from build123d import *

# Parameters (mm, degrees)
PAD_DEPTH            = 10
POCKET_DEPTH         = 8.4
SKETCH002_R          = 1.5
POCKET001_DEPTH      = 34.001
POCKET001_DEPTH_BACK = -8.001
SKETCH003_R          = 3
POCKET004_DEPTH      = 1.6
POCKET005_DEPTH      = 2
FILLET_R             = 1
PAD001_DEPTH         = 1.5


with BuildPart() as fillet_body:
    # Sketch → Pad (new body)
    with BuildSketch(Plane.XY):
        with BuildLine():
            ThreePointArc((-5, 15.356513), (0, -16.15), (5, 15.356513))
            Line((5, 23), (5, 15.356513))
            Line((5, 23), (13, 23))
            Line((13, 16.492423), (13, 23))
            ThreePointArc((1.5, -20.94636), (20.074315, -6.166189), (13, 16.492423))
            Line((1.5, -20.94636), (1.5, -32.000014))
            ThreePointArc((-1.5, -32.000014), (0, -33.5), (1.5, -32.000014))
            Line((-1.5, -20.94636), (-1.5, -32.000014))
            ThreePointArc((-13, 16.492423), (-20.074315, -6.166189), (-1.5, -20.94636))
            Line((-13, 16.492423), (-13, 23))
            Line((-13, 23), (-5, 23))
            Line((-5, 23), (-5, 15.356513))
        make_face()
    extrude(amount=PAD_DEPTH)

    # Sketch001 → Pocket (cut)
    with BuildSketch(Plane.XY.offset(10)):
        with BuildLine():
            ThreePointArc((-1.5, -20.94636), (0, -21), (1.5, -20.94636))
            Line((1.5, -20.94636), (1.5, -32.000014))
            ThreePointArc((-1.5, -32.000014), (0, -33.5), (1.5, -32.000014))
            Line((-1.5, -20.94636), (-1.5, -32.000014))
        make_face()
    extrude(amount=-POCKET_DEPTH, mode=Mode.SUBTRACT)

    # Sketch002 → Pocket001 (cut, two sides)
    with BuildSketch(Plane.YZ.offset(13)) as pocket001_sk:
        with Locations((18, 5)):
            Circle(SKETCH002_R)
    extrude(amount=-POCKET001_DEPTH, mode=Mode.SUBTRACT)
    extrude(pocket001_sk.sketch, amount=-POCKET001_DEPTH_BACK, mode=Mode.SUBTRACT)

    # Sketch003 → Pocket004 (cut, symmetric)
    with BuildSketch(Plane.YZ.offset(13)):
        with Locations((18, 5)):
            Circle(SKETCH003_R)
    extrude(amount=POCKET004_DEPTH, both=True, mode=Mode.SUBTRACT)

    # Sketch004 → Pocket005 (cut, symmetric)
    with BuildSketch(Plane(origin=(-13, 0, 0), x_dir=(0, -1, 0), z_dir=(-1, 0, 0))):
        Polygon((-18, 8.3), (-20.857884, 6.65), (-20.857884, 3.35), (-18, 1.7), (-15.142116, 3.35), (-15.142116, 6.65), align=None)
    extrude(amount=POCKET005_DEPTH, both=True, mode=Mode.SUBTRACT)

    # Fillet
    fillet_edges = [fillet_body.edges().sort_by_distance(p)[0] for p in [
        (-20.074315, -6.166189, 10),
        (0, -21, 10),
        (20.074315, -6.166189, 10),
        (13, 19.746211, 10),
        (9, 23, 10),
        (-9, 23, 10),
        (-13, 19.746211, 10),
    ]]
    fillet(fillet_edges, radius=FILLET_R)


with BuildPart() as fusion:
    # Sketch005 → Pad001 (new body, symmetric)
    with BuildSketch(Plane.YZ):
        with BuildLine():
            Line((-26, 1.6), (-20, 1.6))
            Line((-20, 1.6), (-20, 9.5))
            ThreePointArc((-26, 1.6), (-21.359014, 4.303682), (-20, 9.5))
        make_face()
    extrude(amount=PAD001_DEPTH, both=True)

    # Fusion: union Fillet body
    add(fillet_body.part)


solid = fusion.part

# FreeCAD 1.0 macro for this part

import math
import FreeCAD as App
import Part
import Sketcher
from FreeCAD import Vector
Q = App.Units.Quantity


def edges_at(feature, points):
    """Names of the edges that pass closest to the given points."""
    edges = feature.Shape.Edges
    near = lambda p: min(range(len(edges)), key=lambda i: edges[i].distToShape(Part.Vertex(*p))[0])
    return sorted({f"Edge{near(p) + 1}" for p in points})


def add_polygon(sketch, points):
    """Adds a closed chain of lines whose ends are joined by coincident constraints."""
    first, n = sketch.GeometryCount, len(points)
    for a, b in zip(points, points[1:] + points[:1]):
        sketch.addGeometry(Part.LineSegment(App.Vector(*a, 0), App.Vector(*b, 0)), False)
    for i in range(n):
        sketch.addConstraint(Sketcher.Constraint("Coincident", first + i, 2, first + (i + 1) % n, 1))

doc = App.newDocument("Part")
body = doc.addObject("PartDesign::Body", "Body")

sketch1 = doc.addObject("Sketcher::SketchObject", "Sketch")
body.addObject(sketch1)
sketch1.AttachmentSupport = (doc.XY_Plane, [""])
sketch1.MapMode = "FlatFace"
sketch1.addGeometry(Part.ArcOfCircle(Part.Circle(Vector(0, 0, 0), Vector(0, 0, 1), 16.1), math.radians(108), math.radians(432)), False)
sketch1.addGeometry(Part.LineSegment(Vector(-5, 15.4, 0), Vector(-5, 23, 0)), False)
sketch1.addGeometry(Part.LineSegment(Vector(-5, 23, 0), Vector(-13, 23, 0)), False)
sketch1.addGeometry(Part.LineSegment(Vector(-13, 23, 0), Vector(-13, 16.5, 0)), False)
sketch1.addGeometry(Part.ArcOfCircle(Part.Circle(Vector(0, 0, 0), Vector(0, 0, 1), 21), math.radians(128), math.radians(266)), False)
sketch1.addGeometry(Part.LineSegment(Vector(-1.5, -20.9, 0), Vector(-1.5, -32, 0)), False)
sketch1.addGeometry(Part.ArcOfCircle(Part.Circle(Vector(0, -32, 0), Vector(0, 0, 1), 1.5), math.radians(-180), math.radians(0)), False)
sketch1.addGeometry(Part.LineSegment(Vector(1.5, -32, 0), Vector(1.5, -20.9, 0)), False)
sketch1.addGeometry(Part.ArcOfCircle(Part.Circle(Vector(0, 0, 0), Vector(0, 0, 1), 21), math.radians(-86), math.radians(52)), False)
sketch1.addGeometry(Part.LineSegment(Vector(13, 16.5, 0), Vector(13, 23, 0)), False)
sketch1.addGeometry(Part.LineSegment(Vector(13, 23, 0), Vector(5, 23, 0)), False)
sketch1.addGeometry(Part.LineSegment(Vector(5, 23, 0), Vector(5, 15.4, 0)), False)
sketch1.addConstraint(Sketcher.Constraint("Coincident", 0, 1, 1, 1))
sketch1.addConstraint(Sketcher.Constraint("Coincident", 1, 2, 2, 1))
sketch1.addConstraint(Sketcher.Constraint("Coincident", 2, 2, 3, 1))
sketch1.addConstraint(Sketcher.Constraint("Coincident", 3, 2, 4, 1))
sketch1.addConstraint(Sketcher.Constraint("Coincident", 4, 2, 5, 1))
sketch1.addConstraint(Sketcher.Constraint("Coincident", 5, 2, 6, 1))
sketch1.addConstraint(Sketcher.Constraint("Coincident", 6, 2, 7, 1))
sketch1.addConstraint(Sketcher.Constraint("Coincident", 7, 2, 8, 1))
sketch1.addConstraint(Sketcher.Constraint("Coincident", 8, 2, 9, 1))
sketch1.addConstraint(Sketcher.Constraint("Coincident", 9, 2, 10, 1))
sketch1.addConstraint(Sketcher.Constraint("Coincident", 10, 2, 11, 1))
sketch1.addConstraint(Sketcher.Constraint("Coincident", 11, 2, 0, 2))
sketch1.addConstraint(Sketcher.Constraint("Vertical", 1))
sketch1.addConstraint(Sketcher.Constraint("Horizontal", 2))
sketch1.addConstraint(Sketcher.Constraint("Vertical", 3))
sketch1.addConstraint(Sketcher.Constraint("Vertical", 5))
sketch1.addConstraint(Sketcher.Constraint("Vertical", 7))
sketch1.addConstraint(Sketcher.Constraint("Vertical", 9))
sketch1.addConstraint(Sketcher.Constraint("Horizontal", 10))
sketch1.addConstraint(Sketcher.Constraint("Vertical", 11))
sketch1.addConstraint(Sketcher.Constraint("Coincident", 0, 3, -1, 1))
sketch1.addConstraint(Sketcher.Constraint("Coincident", 4, 3, -1, 1))
sketch1.addConstraint(Sketcher.Constraint("Coincident", 8, 3, -1, 1))
sketch1.addConstraint(Sketcher.Constraint("Equal", 4, 8))
sketch1.addConstraint(Sketcher.Constraint("Symmetric", 5, 2, 6, 2, -2))
sketch1.addConstraint(Sketcher.Constraint("Symmetric", 2, 2, 9, 2, -2))
sketch1.addConstraint(Sketcher.Constraint("Horizontal", 0, 1, 11, 2))
sketch1.addConstraint(Sketcher.Constraint("Radius", 4, 21.0))
sketch1.addConstraint(Sketcher.Constraint("Radius", 6, 1.5))
sketch1.addConstraint(Sketcher.Constraint("DistanceX", 2, 2, 2, 1, 8.0))
sketch1.addConstraint(Sketcher.Constraint("Radius", 0, 16.15))
sketch1.addConstraint(Sketcher.Constraint("DistanceY", 6, 3, -1, 1, 32.0))
sketch1.addConstraint(Sketcher.Constraint("DistanceX", 0, 1, -1, 1, 5.0))
sketch1.addConstraint(Sketcher.Constraint("DistanceY", -1, 1, 1, 2, 23.0))
sketch1.addConstraint(Sketcher.Constraint("DistanceY", 5, 2, 5, 1, 11.053654))
pad1 = doc.addObject("PartDesign::Pad", "Pad")
body.addObject(pad1)
pad1.Profile = sketch1
pad1.Length = 10

sketch2 = doc.addObject("Sketcher::SketchObject", "Sketch001")
body.addObject(sketch2)
sketch2.AttachmentSupport = (doc.XY_Plane, [""])
sketch2.MapMode = "FlatFace"
sketch2.AttachmentOffset = App.Placement(Vector(0, 0, 10), App.Rotation())
sketch2.addGeometry(Part.ArcOfCircle(Part.Circle(Vector(0, 0, 0), Vector(0, 0, 1), 21), math.radians(-94.1), math.radians(-85.9)), False)
sketch2.addGeometry(Part.LineSegment(Vector(-1.5, -20.9, 0), Vector(-1.5, -32, 0)), False)
sketch2.addGeometry(Part.ArcOfCircle(Part.Circle(Vector(0, -32, 0), Vector(0, 0, 1), 1.5), math.radians(-180), math.radians(0)), False)
sketch2.addGeometry(Part.LineSegment(Vector(1.5, -32, 0), Vector(1.5, -20.9, 0)), False)
sketch2.addConstraint(Sketcher.Constraint("Coincident", 0, 1, 1, 1))
sketch2.addConstraint(Sketcher.Constraint("Coincident", 1, 2, 2, 1))
sketch2.addConstraint(Sketcher.Constraint("Coincident", 2, 2, 3, 1))
sketch2.addConstraint(Sketcher.Constraint("Coincident", 3, 2, 0, 2))
sketch2.addConstraint(Sketcher.Constraint("Vertical", 1))
sketch2.addConstraint(Sketcher.Constraint("Vertical", 3))
sketch2.addConstraint(Sketcher.Constraint("Symmetric", 1, 2, 2, 2, -2))
sketch2.addConstraint(Sketcher.Constraint("PointOnObject", 0, 3, -2))
sketch2.addConstraint(Sketcher.Constraint("Radius", 2, 1.5))
sketch2.addConstraint(Sketcher.Constraint("DistanceY", 2, 3, -1, 1, 32.0))
sketch2.addConstraint(Sketcher.Constraint("Radius", 0, 20.999974))
sketch2.addConstraint(Sketcher.Constraint("DistanceY", 1, 2, 1, 1, 11.053654))
sketch2.addConstraint(Sketcher.Constraint("DistanceY", 0, 1, -1, 1, 20.94636))
pocket1 = doc.addObject("PartDesign::Pocket", "Pocket")
body.addObject(pocket1)
pocket1.Profile = sketch2
pocket1.Length = 8.4

sketch3 = doc.addObject("Sketcher::SketchObject", "Sketch002")
body.addObject(sketch3)
sketch3.AttachmentSupport = (doc.YZ_Plane, [""])
sketch3.MapMode = "FlatFace"
sketch3.AttachmentOffset = App.Placement(Vector(0, 0, 13), App.Rotation())
sketch3.addGeometry(Part.Circle(Vector(18, 5, 0), Vector(0, 0, 1), 1.5), False)
sketch3.addConstraint(Sketcher.Constraint("Diameter", 0, 3.0))
sketch3.addConstraint(Sketcher.Constraint("DistanceX", -1, 1, 0, 3, 18.0))
sketch3.addConstraint(Sketcher.Constraint("DistanceY", -1, 1, 0, 3, 5.0))
pocket2 = doc.addObject("PartDesign::Pocket", "Pocket001")
body.addObject(pocket2)
pocket2.Profile = sketch3
pocket2.Type = "ThroughAll"
pocket2.Midplane = True

sketch4 = doc.addObject("Sketcher::SketchObject", "Sketch003")
body.addObject(sketch4)
sketch4.AttachmentSupport = (doc.YZ_Plane, [""])
sketch4.MapMode = "FlatFace"
sketch4.AttachmentOffset = App.Placement(Vector(0, 0, 13), App.Rotation())
sketch4.addGeometry(Part.Circle(Vector(18, 5, 0), Vector(0, 0, 1), 3), False)
sketch4.addConstraint(Sketcher.Constraint("Diameter", 0, 6.0))
sketch4.addConstraint(Sketcher.Constraint("DistanceX", -1, 1, 0, 3, 18.0))
sketch4.addConstraint(Sketcher.Constraint("DistanceY", -1, 1, 0, 3, 5.0))
pocket3 = doc.addObject("PartDesign::Pocket", "Pocket002")
body.addObject(pocket3)
pocket3.Profile = sketch4
pocket3.Length = 3.2
pocket3.Midplane = True

sketch5 = doc.addObject("Sketcher::SketchObject", "Sketch004")
body.addObject(sketch5)
sketch5.AttachmentSupport = (doc.YZ_Plane, [""])
sketch5.MapMode = "FlatFace"
sketch5.AttachmentOffset = App.Placement(Vector(0, 0, -13), App.Rotation())
add_polygon(sketch5, [(18, 8.3), (20.9, 6.7), (20.9, 3.4), (18, 1.7), (15.1, 3.4), (15.1, 6.7)])
sketch5.addConstraint(Sketcher.Constraint("Vertical", 1))
sketch5.addConstraint(Sketcher.Constraint("Vertical", 4))
sketch5.addConstraint(Sketcher.Constraint("Parallel", 0, 3))
sketch5.addConstraint(Sketcher.Constraint("Parallel", 2, 5))
sketch5.addConstraint(Sketcher.Constraint("Horizontal", 1, 2, 3, 2))
sketch5.addConstraint(Sketcher.Constraint("Horizontal", 0, 2, 4, 2))
sketch5.addConstraint(Sketcher.Constraint("Vertical", 2, 2, 5, 2))
sketch5.addConstraint(Sketcher.Constraint("Angle", 0, Q("-29.999999 deg")))
sketch5.addConstraint(Sketcher.Constraint("DistanceY", 1, 2, 1, 1, 3.3))
sketch5.addConstraint(Sketcher.Constraint("DistanceX", -1, 1, 2, 2, 18.0))
sketch5.addConstraint(Sketcher.Constraint("Distance", 0, 3.3))
sketch5.addConstraint(Sketcher.Constraint("DistanceY", -1, 1, 2, 2, 1.7))
pocket4 = doc.addObject("PartDesign::Pocket", "Pocket003")
body.addObject(pocket4)
pocket4.Profile = sketch5
pocket4.Length = 4
pocket4.Midplane = True
doc.recompute()

fillet = doc.addObject("PartDesign::Fillet", "Fillet")
body.addObject(fillet)
fillet.Base = (pocket4, edges_at(pocket4, [
    (-20.074, -6.166, 10),
    (0, -21, 10),
    (20.074, -6.166, 10),
    (13, 19.746, 10),
    (9, 23, 10),
    (-9, 23, 10),
    (-13, 19.746, 10),
]))
fillet.Radius = 1
body2 = doc.addObject("PartDesign::Body", "Body001")

sketch6 = doc.addObject("Sketcher::SketchObject", "Sketch005")
body2.addObject(sketch6)
sketch6.AttachmentSupport = (doc.getObject("YZ_Plane001"), [""])
sketch6.MapMode = "FlatFace"
sketch6.addGeometry(Part.LineSegment(Vector(-26, 2, 0), Vector(-20, 2, 0)), False)
sketch6.addGeometry(Part.LineSegment(Vector(-20, 2, 0), Vector(-20, 8, 0)), False)
sketch6.addGeometry(Part.ArcOfCircle(Part.Circle(Vector(-27, 9, 0), Vector(0, 0, 1), 7), math.radians(-82), math.radians(-8)), False)
sketch6.addConstraint(Sketcher.Constraint("Coincident", 0, 2, 1, 1))
sketch6.addConstraint(Sketcher.Constraint("Coincident", 1, 2, 2, 2))
sketch6.addConstraint(Sketcher.Constraint("Coincident", 2, 1, 0, 1))
sketch6.addConstraint(Sketcher.Constraint("Horizontal", 0))
sketch6.addConstraint(Sketcher.Constraint("Vertical", 1))
sketch6.addConstraint(Sketcher.Constraint("Radius", 2, 7.0))
sketch6.addConstraint(Sketcher.Constraint("DistanceX", 0, 1, 0, 2, 6.0))
sketch6.addConstraint(Sketcher.Constraint("DistanceX", 0, 2, -1, 1, 20.0))
sketch6.addConstraint(Sketcher.Constraint("DistanceY", -1, 1, 0, 2, 1.6))
sketch6.addConstraint(Sketcher.Constraint("DistanceY", 1, 1, 1, 2, 5.974951))
pad2 = doc.addObject("PartDesign::Pad", "Pad001")
body2.addObject(pad2)
pad2.Profile = sketch6
pad2.Length = 3
pad2.Midplane = True
doc.recompute()

boolean = doc.addObject("PartDesign::Boolean", "Boolean")
body2.addObject(boolean)
boolean.Type = "Fuse"
boolean.addObjects([body])

doc.recompute()
